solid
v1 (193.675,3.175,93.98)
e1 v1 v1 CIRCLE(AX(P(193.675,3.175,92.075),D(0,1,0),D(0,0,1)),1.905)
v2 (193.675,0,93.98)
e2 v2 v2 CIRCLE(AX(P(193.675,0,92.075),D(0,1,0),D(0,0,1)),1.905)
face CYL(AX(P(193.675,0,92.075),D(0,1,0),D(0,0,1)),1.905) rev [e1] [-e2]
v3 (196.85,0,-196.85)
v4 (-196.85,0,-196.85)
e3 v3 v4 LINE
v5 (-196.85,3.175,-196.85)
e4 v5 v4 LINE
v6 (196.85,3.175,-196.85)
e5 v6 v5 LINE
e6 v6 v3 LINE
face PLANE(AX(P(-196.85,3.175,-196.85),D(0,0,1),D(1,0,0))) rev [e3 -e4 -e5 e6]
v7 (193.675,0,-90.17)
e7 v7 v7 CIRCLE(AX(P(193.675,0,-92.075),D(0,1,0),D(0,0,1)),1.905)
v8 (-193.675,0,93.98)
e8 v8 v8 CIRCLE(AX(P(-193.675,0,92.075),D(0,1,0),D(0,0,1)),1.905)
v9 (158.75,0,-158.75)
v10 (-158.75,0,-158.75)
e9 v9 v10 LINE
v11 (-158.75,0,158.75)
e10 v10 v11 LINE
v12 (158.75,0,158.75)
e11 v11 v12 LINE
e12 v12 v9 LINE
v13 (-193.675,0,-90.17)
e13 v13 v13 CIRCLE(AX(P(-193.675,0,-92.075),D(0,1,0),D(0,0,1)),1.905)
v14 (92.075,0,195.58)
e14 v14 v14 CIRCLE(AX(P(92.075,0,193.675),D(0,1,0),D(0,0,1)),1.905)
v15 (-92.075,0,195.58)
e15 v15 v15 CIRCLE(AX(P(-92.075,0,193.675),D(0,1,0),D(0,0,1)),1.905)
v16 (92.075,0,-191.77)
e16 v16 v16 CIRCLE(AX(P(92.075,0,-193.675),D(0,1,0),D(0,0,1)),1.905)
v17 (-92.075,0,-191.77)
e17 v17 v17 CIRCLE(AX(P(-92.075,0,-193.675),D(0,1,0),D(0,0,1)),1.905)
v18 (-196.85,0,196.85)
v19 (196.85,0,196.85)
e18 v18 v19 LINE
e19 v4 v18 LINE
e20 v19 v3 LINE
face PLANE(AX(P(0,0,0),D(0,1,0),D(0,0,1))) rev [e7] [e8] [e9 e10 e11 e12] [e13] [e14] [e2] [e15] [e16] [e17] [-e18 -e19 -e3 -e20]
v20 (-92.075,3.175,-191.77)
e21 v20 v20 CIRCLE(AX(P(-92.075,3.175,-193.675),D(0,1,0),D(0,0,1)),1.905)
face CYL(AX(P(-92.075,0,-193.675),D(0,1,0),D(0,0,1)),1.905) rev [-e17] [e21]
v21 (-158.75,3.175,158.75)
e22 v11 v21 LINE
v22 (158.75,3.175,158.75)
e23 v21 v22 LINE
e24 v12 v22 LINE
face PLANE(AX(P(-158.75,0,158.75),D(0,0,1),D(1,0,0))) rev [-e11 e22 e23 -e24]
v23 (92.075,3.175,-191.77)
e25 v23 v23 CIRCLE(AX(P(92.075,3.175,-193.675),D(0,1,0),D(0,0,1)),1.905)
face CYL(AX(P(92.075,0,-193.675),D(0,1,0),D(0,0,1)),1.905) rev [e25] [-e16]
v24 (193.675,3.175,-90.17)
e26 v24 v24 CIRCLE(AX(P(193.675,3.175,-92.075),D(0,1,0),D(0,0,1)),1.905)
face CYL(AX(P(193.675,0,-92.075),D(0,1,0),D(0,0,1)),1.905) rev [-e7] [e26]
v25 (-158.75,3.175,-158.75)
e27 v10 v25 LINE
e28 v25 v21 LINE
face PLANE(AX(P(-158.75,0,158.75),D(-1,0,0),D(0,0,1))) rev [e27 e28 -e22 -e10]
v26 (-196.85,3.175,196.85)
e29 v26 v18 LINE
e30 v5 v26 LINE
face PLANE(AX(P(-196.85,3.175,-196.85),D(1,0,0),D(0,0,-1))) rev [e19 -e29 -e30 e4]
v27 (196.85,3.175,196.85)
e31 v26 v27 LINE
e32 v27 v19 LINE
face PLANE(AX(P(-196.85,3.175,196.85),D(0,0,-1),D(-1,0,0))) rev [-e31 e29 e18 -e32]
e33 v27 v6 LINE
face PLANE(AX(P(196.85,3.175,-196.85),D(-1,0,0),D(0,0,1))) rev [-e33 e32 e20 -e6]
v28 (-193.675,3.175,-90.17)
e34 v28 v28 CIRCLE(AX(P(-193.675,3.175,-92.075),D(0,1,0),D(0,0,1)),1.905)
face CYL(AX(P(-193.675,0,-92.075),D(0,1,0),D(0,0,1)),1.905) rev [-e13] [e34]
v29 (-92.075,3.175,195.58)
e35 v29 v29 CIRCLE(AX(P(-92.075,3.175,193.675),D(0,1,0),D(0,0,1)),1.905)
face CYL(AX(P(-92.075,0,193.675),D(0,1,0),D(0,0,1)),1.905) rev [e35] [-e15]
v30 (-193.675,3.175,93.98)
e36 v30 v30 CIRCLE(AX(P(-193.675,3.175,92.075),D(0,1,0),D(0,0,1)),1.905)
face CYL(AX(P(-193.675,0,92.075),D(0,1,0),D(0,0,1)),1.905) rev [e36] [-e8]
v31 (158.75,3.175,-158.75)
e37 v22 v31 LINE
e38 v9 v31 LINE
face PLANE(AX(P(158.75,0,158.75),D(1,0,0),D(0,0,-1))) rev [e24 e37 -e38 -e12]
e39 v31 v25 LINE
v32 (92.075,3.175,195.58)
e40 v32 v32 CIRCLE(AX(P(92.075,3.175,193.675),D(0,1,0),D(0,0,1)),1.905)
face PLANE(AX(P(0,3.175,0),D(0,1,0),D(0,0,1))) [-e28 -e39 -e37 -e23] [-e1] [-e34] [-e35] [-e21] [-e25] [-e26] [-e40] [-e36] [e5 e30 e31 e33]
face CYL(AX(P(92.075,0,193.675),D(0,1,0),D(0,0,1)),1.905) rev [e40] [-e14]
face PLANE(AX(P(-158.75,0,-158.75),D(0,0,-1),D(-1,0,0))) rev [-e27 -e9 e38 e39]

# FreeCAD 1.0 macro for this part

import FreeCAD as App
import Part
import Sketcher
Q = App.Units.Quantity


def add_polygon(sketch, points):
    """Adds a closed chain of lines whose ends are joined by coincident constraints."""
    first, n = sketch.GeometryCount, len(points)
    for a, b in zip(points, points[1:] + points[:1]):
        sketch.addGeometry(Part.LineSegment(App.Vector(*a, 0), App.Vector(*b, 0)), False)
    for i in range(n):
        sketch.addConstraint(Sketcher.Constraint("Coincident", first + i, 2, first + (i + 1) % n, 1))

doc = App.newDocument("Part")
body = doc.addObject("PartDesign::Body", "Body")

# Sketch on XZ plane
sketch1 = doc.addObject("Sketcher::SketchObject", "Sketch")
body.addObject(sketch1)
sketch1.AttachmentSupport = (doc.XZ_Plane, [""])
sketch1.MapMode = "FlatFace"
add_polygon(sketch1, [(-197, -197), (-197, 197), (197, 197), (197, -197)])  # lines 0-3
sketch1.addConstraint(Sketcher.Constraint("Vertical", 0))
sketch1.addConstraint(Sketcher.Constraint("Horizontal", 1))
sketch1.addConstraint(Sketcher.Constraint("Vertical", 2))
sketch1.addConstraint(Sketcher.Constraint("Horizontal", 3))
sketch1.addConstraint(Sketcher.Constraint("Symmetric", 0, 2, 2, 2, -1, 1))
sketch1.addConstraint(Sketcher.Constraint("Equal", 3, 0))
sketch1.addConstraint(Sketcher.Constraint("DistanceX", 1, 1, 1, 2, Q("15.5 in")))
pad1 = doc.addObject("PartDesign::Pad", "Pad")
body.addObject(pad1)
pad1.Profile = sketch1
pad1.Length = Q("0.125 in")
pad1.Reversed = True

# Sketch on XZ plane
sketch2 = doc.addObject("Sketcher::SketchObject", "Sketch001")
body.addObject(sketch2)
sketch2.AttachmentSupport = (doc.XZ_Plane, [""])
sketch2.MapMode = "FlatFace"
sketch2.AttachmentOffset = App.Placement(App.Vector(0, 0, -0.125 * 25.4), App.Rotation())
add_polygon(sketch2, [(-159, -159), (-159, 159), (159, 159), (159, -159)])  # lines 0-3
sketch2.addConstraint(Sketcher.Constraint("Vertical", 0))
sketch2.addConstraint(Sketcher.Constraint("Horizontal", 1))
sketch2.addConstraint(Sketcher.Constraint("Vertical", 2))
sketch2.addConstraint(Sketcher.Constraint("Horizontal", 3))
sketch2.addConstraint(Sketcher.Constraint("Symmetric", 0, 2, 2, 2, -1, 1))
sketch2.addConstraint(Sketcher.Constraint("Equal", 3, 0))
sketch2.addConstraint(Sketcher.Constraint("DistanceX", 1, 1, 1, 2, Q("12.5 in")))
pocket1 = doc.addObject("PartDesign::Pocket", "Pocket")
body.addObject(pocket1)
pocket1.Profile = sketch2
pocket1.Type = "ThroughAll"
pocket1.Reversed = True

# Sketch on XZ plane
sketch3 = doc.addObject("Sketcher::SketchObject", "Sketch002")
body.addObject(sketch3)
sketch3.AttachmentSupport = (doc.XZ_Plane, [""])
sketch3.MapMode = "FlatFace"
sketch3.AttachmentOffset = App.Placement(App.Vector(0, 0, -0.125 * 25.4), App.Rotation())
sketch3.addGeometry(Part.Circle(App.Vector(-92.1, 193.7, 0), App.Vector(0, 0, 1), 1.9), False)
sketch3.addGeometry(Part.Circle(App.Vector(92.1, 193.7, 0), App.Vector(0, 0, 1), 1.9), False)
sketch3.addGeometry(Part.Circle(App.Vector(193.7, 92.1, 0), App.Vector(0, 0, 1), 1.9), False)
sketch3.addGeometry(Part.Circle(App.Vector(193.7, -92.1, 0), App.Vector(0, 0, 1), 1.9), False)
sketch3.addGeometry(Part.Circle(App.Vector(92.1, -193.7, 0), App.Vector(0, 0, 1), 1.9), False)
sketch3.addGeometry(Part.Circle(App.Vector(-92.1, -193.7, 0), App.Vector(0, 0, 1), 1.9), False)
sketch3.addGeometry(Part.Circle(App.Vector(-193.7, -92.1, 0), App.Vector(0, 0, 1), 1.9), False)
sketch3.addGeometry(Part.Circle(App.Vector(-193.7, 92.1, 0), App.Vector(0, 0, 1), 1.9), False)
sketch3.addConstraint(Sketcher.Constraint("Equal", 0, 1))
sketch3.addConstraint(Sketcher.Constraint("Equal", 1, 2))
sketch3.addConstraint(Sketcher.Constraint("Equal", 2, 3))
sketch3.addConstraint(Sketcher.Constraint("Equal", 3, 4))
sketch3.addConstraint(Sketcher.Constraint("Equal", 4, 5))
sketch3.addConstraint(Sketcher.Constraint("Equal", 5, 6))
sketch3.addConstraint(Sketcher.Constraint("Equal", 6, 7))
sketch3.addConstraint(Sketcher.Constraint("Symmetric", 0, 3, 4, 3, -1, 1))
sketch3.addConstraint(Sketcher.Constraint("Symmetric", 1, 3, 5, 3, -1, 1))
sketch3.addConstraint(Sketcher.Constraint("Symmetric", 2, 3, 6, 3, -1, 1))
sketch3.addConstraint(Sketcher.Constraint("Symmetric", 3, 3, 7, 3, -1, 1))
sketch3.addConstraint(Sketcher.Constraint("Symmetric", 0, 3, 1, 3, -2))
sketch3.addConstraint(Sketcher.Constraint("Symmetric", 3, 3, 6, 3, -2))
sketch3.addConstraint(Sketcher.Constraint("Diameter", 0, Q("0.15 in")))
sketch3.addConstraint(Sketcher.Constraint("DistanceX", 1, 3, 2, 3, Q("4 in")))
sketch3.addConstraint(Sketcher.Constraint("DistanceY", 2, 3, 1, 3, Q("4 in")))
sketch3.addConstraint(Sketcher.Constraint("DistanceX", 0, 3, 1, 3, Q("7.25 in")))
sketch3.addConstraint(Sketcher.Constraint("DistanceY", 3, 3, 2, 3, Q("7.25 in")))
pocket2 = doc.addObject("PartDesign::Pocket", "Pocket001")
body.addObject(pocket2)
pocket2.Profile = sketch3
pocket2.Type = "ThroughAll"
pocket2.Reversed = True

doc.recompute()
